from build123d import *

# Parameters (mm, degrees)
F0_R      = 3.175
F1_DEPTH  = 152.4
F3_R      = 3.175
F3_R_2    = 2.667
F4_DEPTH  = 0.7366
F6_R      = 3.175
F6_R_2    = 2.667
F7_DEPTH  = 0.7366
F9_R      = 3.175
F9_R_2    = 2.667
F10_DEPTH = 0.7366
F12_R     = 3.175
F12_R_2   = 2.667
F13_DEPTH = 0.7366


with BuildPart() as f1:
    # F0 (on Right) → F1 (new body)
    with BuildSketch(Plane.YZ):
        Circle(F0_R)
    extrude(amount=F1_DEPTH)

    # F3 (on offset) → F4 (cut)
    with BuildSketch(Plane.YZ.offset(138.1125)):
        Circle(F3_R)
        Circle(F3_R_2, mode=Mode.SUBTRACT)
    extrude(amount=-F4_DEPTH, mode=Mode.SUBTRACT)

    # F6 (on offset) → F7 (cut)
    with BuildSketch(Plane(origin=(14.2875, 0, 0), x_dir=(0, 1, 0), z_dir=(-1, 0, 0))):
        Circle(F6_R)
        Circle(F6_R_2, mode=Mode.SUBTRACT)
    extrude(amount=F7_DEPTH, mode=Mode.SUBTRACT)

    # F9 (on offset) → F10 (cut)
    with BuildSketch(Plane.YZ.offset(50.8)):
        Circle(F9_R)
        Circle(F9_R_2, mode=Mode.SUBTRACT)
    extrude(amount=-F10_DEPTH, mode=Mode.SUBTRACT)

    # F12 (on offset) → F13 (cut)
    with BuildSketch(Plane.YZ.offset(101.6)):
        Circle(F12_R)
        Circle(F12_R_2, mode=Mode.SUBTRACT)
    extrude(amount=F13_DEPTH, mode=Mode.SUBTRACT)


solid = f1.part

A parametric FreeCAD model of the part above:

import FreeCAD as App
import Part
import Sketcher
from FreeCAD import Vector
Q = App.Units.Quantity

doc = App.newDocument("Part")
body = doc.addObject("PartDesign::Body", "Body")

# Sketch on YZ plane
sketch1 = body.newObject("Sketcher::SketchObject", "Sketch")
sketch1.AttachmentSupport = (doc.getObject("YZ_Plane"), [""])
sketch1.MapMode = "FlatFace"
sketch1.addGeometry(Part.Circle(Vector(0, 0, 0), Vector(0, 0, 1), 3.175), False)
sketch1.addConstraint(Sketcher.Constraint("Coincident", 0, 3, -1, 1))
sketch1.addConstraint(Sketcher.Constraint("Diameter", 0, Q("0.25 in")))
pad1 = body.newObject("PartDesign::Pad", "Pad")
pad1.Profile = sketch1
pad1.Length = Q("6 in")

# Sketch on YZ plane
sketch2 = body.newObject("Sketcher::SketchObject", "Sketch001")
sketch2.AttachmentSupport = (doc.getObject("YZ_Plane"), [""])
sketch2.MapMode = "FlatFace"
sketch2.AttachmentOffset = App.Placement(Vector(0, 0, 5.4375 * 25.4), App.Rotation())
sketch2.addGeometry(Part.Circle(Vector(0, 0, 0), Vector(0, 0, 1), 3.175), False)
sketch2.addGeometry(Part.Circle(Vector(0, 0, 0), Vector(0, 0, 1), 2.667), False)
sketch2.addConstraint(Sketcher.Constraint("Coincident", 0, 3, -1, 1))
sketch2.addConstraint(Sketcher.Constraint("Coincident", 1, 3, -1, 1))
sketch2.addConstraint(Sketcher.Constraint("Diameter", 0, Q("0.25 in")))
sketch2.addConstraint(Sketcher.Constraint("Diameter", 1, Q("0.21 in")))
pocket1 = body.newObject("PartDesign::Pocket", "Pocket")
pocket1.Profile = sketch2
pocket1.Length = Q("0.029 in")

# Sketch on YZ plane
sketch3 = body.newObject("Sketcher::SketchObject", "Sketch002")
sketch3.AttachmentSupport = (doc.getObject("YZ_Plane"), [""])
sketch3.MapMode = "FlatFace"
sketch3.AttachmentOffset = App.Placement(Vector(0, 0, 0.5625 * 25.4), App.Rotation())
sketch3.addGeometry(Part.Circle(Vector(0, 0, 0), Vector(0, 0, 1), 3.175), False)
sketch3.addGeometry(Part.Circle(Vector(0, 0, 0), Vector(0, 0, 1), 2.667), False)
sketch3.addConstraint(Sketcher.Constraint("Coincident", 0, 3, -1, 1))
sketch3.addConstraint(Sketcher.Constraint("Coincident", 1, 3, -1, 1))
sketch3.addConstraint(Sketcher.Constraint("Diameter", 0, Q("0.25 in")))
sketch3.addConstraint(Sketcher.Constraint("Diameter", 1, Q("0.21 in")))
pocket2 = body.newObject("PartDesign::Pocket", "Pocket001")
pocket2.Profile = sketch3
pocket2.Length = Q("0.029 in")

# Sketch on YZ plane
sketch4 = body.newObject("Sketcher::SketchObject", "Sketch003")
sketch4.AttachmentSupport = (doc.getObject("YZ_Plane"), [""])
sketch4.MapMode = "FlatFace"
sketch4.AttachmentOffset = App.Placement(Vector(0, 0, 2 * 25.4), App.Rotation())
sketch4.addGeometry(Part.Circle(Vector(0, 0, 0), Vector(0, 0, 1), 3.175), False)
sketch4.addGeometry(Part.Circle(Vector(0, 0, 0), Vector(0, 0, 1), 2.667), False)
sketch4.addConstraint(Sketcher.Constraint("Coincident", 0, 3, -1, 1))
sketch4.addConstraint(Sketcher.Constraint("Coincident", 1, 3, -1, 1))
sketch4.addConstraint(Sketcher.Constraint("Diameter", 0, Q("0.25 in")))
sketch4.addConstraint(Sketcher.Constraint("Diameter", 1, Q("0.21 in")))
pocket3 = body.newObject("PartDesign::Pocket", "Pocket002")
pocket3.Profile = sketch4
pocket3.Length = Q("0.029 in")

# Sketch on YZ plane
sketch5 = body.newObject("Sketcher::SketchObject", "Sketch004")
sketch5.AttachmentSupport = (doc.getObject("YZ_Plane"), [""])
sketch5.MapMode = "FlatFace"
sketch5.AttachmentOffset = App.Placement(Vector(0, 0, 4 * 25.4), App.Rotation())
sketch5.addGeometry(Part.Circle(Vector(0, 0, 0), Vector(0, 0, 1), 3.175), False)
sketch5.addGeometry(Part.Circle(Vector(0, 0, 0), Vector(0, 0, 1), 2.667), False)
sketch5.addConstraint(Sketcher.Constraint("Coincident", 0, 3, -1, 1))
sketch5.addConstraint(Sketcher.Constraint("Coincident", 1, 3, -1, 1))
sketch5.addConstraint(Sketcher.Constraint("Diameter", 0, Q("0.25 in")))
sketch5.addConstraint(Sketcher.Constraint("Diameter", 1, Q("0.21 in")))
pocket4 = body.newObject("PartDesign::Pocket", "Pocket003")
pocket4.Profile = sketch5
pocket4.Length = Q("0.029 in")
pocket4.Reversed = True

doc.recompute()
